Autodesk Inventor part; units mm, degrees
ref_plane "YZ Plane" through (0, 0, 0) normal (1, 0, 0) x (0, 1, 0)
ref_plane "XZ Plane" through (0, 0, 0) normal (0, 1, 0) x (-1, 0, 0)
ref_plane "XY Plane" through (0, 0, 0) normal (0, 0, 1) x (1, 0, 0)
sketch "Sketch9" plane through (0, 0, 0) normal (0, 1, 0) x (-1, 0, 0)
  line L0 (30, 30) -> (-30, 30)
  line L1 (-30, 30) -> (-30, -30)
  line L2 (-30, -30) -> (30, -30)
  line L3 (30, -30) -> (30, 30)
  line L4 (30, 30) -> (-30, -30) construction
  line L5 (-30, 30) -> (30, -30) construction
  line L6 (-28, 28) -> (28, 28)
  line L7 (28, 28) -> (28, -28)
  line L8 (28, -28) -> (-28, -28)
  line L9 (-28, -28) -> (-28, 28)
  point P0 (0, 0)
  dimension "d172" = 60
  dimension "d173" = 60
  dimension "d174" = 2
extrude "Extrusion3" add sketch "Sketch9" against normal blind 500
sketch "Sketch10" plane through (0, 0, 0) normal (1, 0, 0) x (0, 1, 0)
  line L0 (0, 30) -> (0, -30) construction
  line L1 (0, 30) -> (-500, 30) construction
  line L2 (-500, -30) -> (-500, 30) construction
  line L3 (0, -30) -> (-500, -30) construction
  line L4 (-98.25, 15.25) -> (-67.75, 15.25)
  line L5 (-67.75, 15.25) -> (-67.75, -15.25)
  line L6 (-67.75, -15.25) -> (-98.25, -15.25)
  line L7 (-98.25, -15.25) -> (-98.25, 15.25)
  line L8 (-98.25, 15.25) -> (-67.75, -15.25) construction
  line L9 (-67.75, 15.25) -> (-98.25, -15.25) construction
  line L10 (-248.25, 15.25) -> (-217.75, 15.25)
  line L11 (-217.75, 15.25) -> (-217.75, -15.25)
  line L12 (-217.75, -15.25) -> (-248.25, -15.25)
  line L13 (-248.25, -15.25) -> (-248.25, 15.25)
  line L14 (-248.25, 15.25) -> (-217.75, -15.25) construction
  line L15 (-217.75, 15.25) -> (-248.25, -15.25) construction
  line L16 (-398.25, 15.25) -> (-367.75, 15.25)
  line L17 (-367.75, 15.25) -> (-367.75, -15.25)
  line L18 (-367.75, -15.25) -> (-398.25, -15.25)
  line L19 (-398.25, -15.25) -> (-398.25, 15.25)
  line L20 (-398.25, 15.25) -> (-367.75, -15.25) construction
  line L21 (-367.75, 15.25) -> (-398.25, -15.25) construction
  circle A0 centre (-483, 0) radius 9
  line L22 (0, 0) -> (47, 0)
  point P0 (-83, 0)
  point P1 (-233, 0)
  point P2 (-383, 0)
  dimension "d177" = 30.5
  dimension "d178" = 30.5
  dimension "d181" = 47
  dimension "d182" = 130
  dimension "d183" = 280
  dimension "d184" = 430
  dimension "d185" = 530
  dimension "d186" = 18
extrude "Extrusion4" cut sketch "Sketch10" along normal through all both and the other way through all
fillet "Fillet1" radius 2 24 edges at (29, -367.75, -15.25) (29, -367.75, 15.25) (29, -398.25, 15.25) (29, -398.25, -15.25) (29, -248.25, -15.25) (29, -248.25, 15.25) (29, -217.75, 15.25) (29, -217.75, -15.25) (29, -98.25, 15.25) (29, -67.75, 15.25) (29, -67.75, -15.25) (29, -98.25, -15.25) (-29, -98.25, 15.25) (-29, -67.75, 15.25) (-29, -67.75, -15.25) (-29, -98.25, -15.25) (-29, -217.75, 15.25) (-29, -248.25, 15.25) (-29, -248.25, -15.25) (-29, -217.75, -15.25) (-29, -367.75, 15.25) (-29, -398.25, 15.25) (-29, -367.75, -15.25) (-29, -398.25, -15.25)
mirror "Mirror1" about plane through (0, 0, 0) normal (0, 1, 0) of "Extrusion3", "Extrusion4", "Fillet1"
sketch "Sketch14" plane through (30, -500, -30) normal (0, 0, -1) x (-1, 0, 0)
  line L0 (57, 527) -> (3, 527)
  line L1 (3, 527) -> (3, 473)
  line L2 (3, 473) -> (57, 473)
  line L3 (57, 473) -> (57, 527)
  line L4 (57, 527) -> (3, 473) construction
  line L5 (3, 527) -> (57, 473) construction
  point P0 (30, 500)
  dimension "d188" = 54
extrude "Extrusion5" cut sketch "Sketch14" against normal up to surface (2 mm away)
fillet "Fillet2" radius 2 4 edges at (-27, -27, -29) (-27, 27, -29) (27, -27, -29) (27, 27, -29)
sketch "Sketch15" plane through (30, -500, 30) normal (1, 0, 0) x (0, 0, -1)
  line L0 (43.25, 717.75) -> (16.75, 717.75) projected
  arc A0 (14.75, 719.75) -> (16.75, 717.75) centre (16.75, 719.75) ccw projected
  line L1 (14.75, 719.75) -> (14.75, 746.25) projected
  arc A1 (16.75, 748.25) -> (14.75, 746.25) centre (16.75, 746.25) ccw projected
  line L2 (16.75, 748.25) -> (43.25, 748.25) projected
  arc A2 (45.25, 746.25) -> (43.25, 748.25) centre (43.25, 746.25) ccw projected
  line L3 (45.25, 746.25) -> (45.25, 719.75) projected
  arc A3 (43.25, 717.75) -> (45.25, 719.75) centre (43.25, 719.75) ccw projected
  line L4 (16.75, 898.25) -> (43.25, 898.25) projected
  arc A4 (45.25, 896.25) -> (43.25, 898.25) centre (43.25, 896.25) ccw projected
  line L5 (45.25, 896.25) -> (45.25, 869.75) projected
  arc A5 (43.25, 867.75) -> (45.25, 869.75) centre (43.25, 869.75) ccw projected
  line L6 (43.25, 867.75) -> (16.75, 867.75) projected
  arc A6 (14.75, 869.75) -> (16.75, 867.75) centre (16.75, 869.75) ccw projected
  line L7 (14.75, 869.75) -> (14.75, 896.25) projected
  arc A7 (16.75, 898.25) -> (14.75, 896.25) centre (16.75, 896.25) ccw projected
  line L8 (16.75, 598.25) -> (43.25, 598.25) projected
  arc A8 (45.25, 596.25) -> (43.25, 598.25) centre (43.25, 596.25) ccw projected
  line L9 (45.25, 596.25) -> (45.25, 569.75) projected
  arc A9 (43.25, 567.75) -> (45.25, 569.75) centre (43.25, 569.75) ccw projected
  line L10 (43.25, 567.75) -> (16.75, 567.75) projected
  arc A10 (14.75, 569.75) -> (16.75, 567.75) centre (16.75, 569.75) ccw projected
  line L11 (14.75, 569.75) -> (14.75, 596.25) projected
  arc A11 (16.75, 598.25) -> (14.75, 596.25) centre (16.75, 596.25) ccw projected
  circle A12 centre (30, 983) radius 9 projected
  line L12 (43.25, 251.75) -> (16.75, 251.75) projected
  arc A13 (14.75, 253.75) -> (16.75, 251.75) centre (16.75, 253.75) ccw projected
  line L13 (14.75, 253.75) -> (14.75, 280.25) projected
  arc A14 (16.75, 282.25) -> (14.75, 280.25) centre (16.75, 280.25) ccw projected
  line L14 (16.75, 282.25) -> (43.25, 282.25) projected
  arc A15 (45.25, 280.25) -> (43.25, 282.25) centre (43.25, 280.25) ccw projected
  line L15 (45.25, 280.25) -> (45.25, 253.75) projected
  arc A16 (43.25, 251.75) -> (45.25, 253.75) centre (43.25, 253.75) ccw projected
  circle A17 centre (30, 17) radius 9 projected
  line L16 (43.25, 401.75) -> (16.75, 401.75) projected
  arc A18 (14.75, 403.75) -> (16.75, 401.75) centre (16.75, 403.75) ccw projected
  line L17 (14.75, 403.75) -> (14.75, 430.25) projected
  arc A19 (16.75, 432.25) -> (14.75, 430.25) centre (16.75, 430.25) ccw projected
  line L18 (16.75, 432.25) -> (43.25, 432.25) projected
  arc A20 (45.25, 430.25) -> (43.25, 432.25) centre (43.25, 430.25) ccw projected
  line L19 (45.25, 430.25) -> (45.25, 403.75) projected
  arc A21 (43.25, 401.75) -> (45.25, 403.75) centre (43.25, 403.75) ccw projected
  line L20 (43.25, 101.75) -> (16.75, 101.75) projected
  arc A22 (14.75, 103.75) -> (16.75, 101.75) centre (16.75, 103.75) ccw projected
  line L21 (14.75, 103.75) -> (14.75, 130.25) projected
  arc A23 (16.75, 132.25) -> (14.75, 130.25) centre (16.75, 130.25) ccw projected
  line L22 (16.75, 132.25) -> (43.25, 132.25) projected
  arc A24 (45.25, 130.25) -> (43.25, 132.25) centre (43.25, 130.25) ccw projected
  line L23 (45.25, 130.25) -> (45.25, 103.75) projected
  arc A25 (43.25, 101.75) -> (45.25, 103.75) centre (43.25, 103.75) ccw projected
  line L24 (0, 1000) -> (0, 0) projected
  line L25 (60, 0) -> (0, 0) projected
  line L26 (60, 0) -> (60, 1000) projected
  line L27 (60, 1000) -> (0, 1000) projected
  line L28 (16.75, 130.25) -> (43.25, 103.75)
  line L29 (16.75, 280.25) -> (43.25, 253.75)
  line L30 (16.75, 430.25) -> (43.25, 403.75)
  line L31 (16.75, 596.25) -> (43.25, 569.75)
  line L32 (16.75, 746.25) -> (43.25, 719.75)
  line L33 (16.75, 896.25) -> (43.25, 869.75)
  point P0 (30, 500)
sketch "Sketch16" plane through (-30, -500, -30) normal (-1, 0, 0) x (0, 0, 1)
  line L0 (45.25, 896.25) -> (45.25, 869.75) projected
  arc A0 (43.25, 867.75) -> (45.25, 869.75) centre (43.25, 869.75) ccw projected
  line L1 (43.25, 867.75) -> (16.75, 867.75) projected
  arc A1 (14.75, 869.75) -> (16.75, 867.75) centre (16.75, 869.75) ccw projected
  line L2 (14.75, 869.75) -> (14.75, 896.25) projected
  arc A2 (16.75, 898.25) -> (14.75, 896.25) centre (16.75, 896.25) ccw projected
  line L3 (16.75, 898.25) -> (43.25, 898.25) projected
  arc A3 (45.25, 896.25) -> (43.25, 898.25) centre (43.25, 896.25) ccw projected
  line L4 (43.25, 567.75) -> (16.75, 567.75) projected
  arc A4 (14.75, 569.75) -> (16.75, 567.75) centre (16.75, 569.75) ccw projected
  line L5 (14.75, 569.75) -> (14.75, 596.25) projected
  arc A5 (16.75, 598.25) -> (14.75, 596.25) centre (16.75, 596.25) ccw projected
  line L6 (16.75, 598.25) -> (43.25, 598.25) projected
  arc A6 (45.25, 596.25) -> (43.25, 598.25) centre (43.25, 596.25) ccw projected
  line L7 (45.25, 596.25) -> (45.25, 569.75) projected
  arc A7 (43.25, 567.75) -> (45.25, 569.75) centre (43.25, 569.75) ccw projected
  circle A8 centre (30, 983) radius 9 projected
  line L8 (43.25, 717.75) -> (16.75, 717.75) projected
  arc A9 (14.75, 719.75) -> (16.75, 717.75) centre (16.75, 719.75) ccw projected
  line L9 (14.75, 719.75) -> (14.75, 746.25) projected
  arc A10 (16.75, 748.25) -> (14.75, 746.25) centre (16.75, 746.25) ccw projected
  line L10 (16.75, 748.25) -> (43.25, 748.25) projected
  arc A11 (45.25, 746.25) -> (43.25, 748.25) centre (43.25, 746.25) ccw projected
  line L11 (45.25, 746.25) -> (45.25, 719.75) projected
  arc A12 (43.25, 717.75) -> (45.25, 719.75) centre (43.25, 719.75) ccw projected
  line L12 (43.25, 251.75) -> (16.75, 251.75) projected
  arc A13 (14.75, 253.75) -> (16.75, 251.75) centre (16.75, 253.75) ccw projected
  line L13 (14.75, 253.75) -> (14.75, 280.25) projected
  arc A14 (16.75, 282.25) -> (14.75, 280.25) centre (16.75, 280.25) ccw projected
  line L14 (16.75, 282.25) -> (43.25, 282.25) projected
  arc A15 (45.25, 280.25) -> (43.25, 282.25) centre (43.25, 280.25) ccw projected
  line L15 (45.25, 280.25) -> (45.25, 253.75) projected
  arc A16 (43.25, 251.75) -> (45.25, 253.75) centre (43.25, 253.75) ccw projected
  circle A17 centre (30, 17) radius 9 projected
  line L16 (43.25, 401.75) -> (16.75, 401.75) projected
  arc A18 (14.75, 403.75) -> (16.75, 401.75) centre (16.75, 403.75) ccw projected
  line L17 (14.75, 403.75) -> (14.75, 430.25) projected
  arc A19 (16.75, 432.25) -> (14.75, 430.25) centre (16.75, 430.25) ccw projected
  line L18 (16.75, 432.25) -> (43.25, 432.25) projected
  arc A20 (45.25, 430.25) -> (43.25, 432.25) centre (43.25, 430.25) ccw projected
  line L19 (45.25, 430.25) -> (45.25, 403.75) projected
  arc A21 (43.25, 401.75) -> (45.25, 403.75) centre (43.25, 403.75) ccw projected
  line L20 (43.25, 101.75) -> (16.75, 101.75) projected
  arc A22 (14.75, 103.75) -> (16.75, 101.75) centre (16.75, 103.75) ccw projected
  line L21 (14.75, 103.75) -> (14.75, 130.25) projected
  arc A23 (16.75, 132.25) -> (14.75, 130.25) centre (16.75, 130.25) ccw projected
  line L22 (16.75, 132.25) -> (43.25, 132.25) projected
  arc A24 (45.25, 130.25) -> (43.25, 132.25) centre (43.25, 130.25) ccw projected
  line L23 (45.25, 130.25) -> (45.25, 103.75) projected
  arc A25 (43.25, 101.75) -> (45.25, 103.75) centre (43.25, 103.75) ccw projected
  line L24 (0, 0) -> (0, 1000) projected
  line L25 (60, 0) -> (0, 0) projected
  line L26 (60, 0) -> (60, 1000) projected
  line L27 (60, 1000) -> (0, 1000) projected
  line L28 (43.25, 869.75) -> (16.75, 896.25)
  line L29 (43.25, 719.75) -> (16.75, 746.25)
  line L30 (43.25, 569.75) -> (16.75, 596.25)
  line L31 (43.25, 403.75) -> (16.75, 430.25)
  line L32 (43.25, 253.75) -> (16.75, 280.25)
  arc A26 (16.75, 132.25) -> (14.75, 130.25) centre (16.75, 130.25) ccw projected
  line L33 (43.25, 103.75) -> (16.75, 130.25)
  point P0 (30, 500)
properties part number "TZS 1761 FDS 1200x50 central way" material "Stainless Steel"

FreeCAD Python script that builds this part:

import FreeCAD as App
import Part
import Sketcher

V = App.Vector
Q = App.Units.Quantity


def edges_at(feature, points):
    """Names of the edges that pass closest to the given points."""
    edges = feature.Shape.Edges
    near = lambda p: min(range(len(edges)), key=lambda i: edges[i].distToShape(Part.Vertex(*p))[0])
    return sorted({f"Edge{near(p) + 1}" for p in points})

doc = App.newDocument("Part")
body = doc.addObject("PartDesign::Body", "Body")

# Sketch on XZ plane
sketch1 = body.newObject("Sketcher::SketchObject", "Sketch")
sketch1.AttachmentSupport = (doc.getObject("XZ_Plane"), [""])
sketch1.MapMode = "FlatFace"
sketch1.addGeometry(Part.LineSegment(V(-30, -30, 0), V(-30, 30, 0)), False)
sketch1.addGeometry(Part.LineSegment(V(-30, 30, 0), V(30, 30, 0)), False)
sketch1.addGeometry(Part.LineSegment(V(30, 30, 0), V(30, -30, 0)), False)
sketch1.addGeometry(Part.LineSegment(V(30, -30, 0), V(-30, -30, 0)), False)
sketch1.addGeometry(Part.LineSegment(V(28, -28, 0), V(28, 28, 0)), False)
sketch1.addGeometry(Part.LineSegment(V(28, 28, 0), V(-28, 28, 0)), False)
sketch1.addGeometry(Part.LineSegment(V(-28, 28, 0), V(-28, -28, 0)), False)
sketch1.addGeometry(Part.LineSegment(V(-28, -28, 0), V(28, -28, 0)), False)
sketch1.addConstraint(Sketcher.Constraint("Coincident", 0, 2, 1, 1))
sketch1.addConstraint(Sketcher.Constraint("Coincident", 1, 2, 2, 1))
sketch1.addConstraint(Sketcher.Constraint("Coincident", 2, 2, 3, 1))
sketch1.addConstraint(Sketcher.Constraint("Coincident", 3, 2, 0, 1))
sketch1.addConstraint(Sketcher.Constraint("Coincident", 4, 2, 5, 1))
sketch1.addConstraint(Sketcher.Constraint("Coincident", 5, 2, 6, 1))
sketch1.addConstraint(Sketcher.Constraint("Coincident", 6, 2, 7, 1))
sketch1.addConstraint(Sketcher.Constraint("Coincident", 7, 2, 4, 1))
sketch1.addConstraint(Sketcher.Constraint("Vertical", 0))
sketch1.addConstraint(Sketcher.Constraint("Horizontal", 1))
sketch1.addConstraint(Sketcher.Constraint("Vertical", 2))
sketch1.addConstraint(Sketcher.Constraint("Horizontal", 3))
sketch1.addConstraint(Sketcher.Constraint("Vertical", 4))
sketch1.addConstraint(Sketcher.Constraint("Horizontal", 5))
sketch1.addConstraint(Sketcher.Constraint("Vertical", 6))
sketch1.addConstraint(Sketcher.Constraint("Horizontal", 7))
sketch1.addConstraint(Sketcher.Constraint("Symmetric", 0, 2, 2, 2, -1, 1))
sketch1.addConstraint(Sketcher.Constraint("Symmetric", 4, 2, 6, 2, -1, 1))
sketch1.addConstraint(Sketcher.Constraint("Equal", 3, 0))
sketch1.addConstraint(Sketcher.Constraint("Equal", 7, 4))
sketch1.addConstraint(Sketcher.Constraint("DistanceX", 1, 1, 1, 2, Q("60 mm")))
sketch1.addConstraint(Sketcher.Constraint("DistanceX", 4, 2, 1, 2, Q("2 mm")))
pad1 = body.newObject("PartDesign::Pad", "Pad")
pad1.Profile = sketch1
pad1.Length = 500

# Sketch on YZ plane
sketch2 = body.newObject("Sketcher::SketchObject", "Sketch001")
sketch2.AttachmentSupport = (doc.getObject("YZ_Plane"), [""])
sketch2.MapMode = "FlatFace"
sketch2.addGeometry(Part.LineSegment(V(-68, 15, 0), V(-98, 15, 0)), False)
sketch2.addGeometry(Part.LineSegment(V(-98, 15, 0), V(-98, -15, 0)), False)
sketch2.addGeometry(Part.LineSegment(V(-98, -15, 0), V(-68, -15, 0)), False)
sketch2.addGeometry(Part.LineSegment(V(-68, -15, 0), V(-68, 15, 0)), False)
sketch2.addGeometry(Part.LineSegment(V(-218, 15, 0), V(-248, 15, 0)), False)
sketch2.addGeometry(Part.LineSegment(V(-248, 15, 0), V(-248, -15, 0)), False)
sketch2.addGeometry(Part.LineSegment(V(-248, -15, 0), V(-218, -15, 0)), False)
sketch2.addGeometry(Part.LineSegment(V(-218, -15, 0), V(-218, 15, 0)), False)
sketch2.addGeometry(Part.LineSegment(V(-368, 15, 0), V(-398, 15, 0)), False)
sketch2.addGeometry(Part.LineSegment(V(-398, 15, 0), V(-398, -15, 0)), False)
sketch2.addGeometry(Part.LineSegment(V(-398, -15, 0), V(-368, -15, 0)), False)
sketch2.addGeometry(Part.LineSegment(V(-368, -15, 0), V(-368, 15, 0)), False)
sketch2.addGeometry(Part.Circle(V(-483, 0, 0), V(0, 0, 1), 9), False)
sketch2.addConstraint(Sketcher.Constraint("Coincident", 0, 2, 1, 1))
sketch2.addConstraint(Sketcher.Constraint("Coincident", 1, 2, 2, 1))
sketch2.addConstraint(Sketcher.Constraint("Coincident", 2, 2, 3, 1))
sketch2.addConstraint(Sketcher.Constraint("Coincident", 3, 2, 0, 1))
sketch2.addConstraint(Sketcher.Constraint("Coincident", 4, 2, 5, 1))
sketch2.addConstraint(Sketcher.Constraint("Coincident", 5, 2, 6, 1))
sketch2.addConstraint(Sketcher.Constraint("Coincident", 6, 2, 7, 1))
sketch2.addConstraint(Sketcher.Constraint("Coincident", 7, 2, 4, 1))
sketch2.addConstraint(Sketcher.Constraint("Coincident", 8, 2, 9, 1))
sketch2.addConstraint(Sketcher.Constraint("Coincident", 9, 2, 10, 1))
sketch2.addConstraint(Sketcher.Constraint("Coincident", 10, 2, 11, 1))
sketch2.addConstraint(Sketcher.Constraint("Coincident", 11, 2, 8, 1))
sketch2.addConstraint(Sketcher.Constraint("Horizontal", 0))
sketch2.addConstraint(Sketcher.Constraint("Vertical", 1))
sketch2.addConstraint(Sketcher.Constraint("Horizontal", 2))
sketch2.addConstraint(Sketcher.Constraint("Vertical", 3))
sketch2.addConstraint(Sketcher.Constraint("Horizontal", 4))
sketch2.addConstraint(Sketcher.Constraint("Vertical", 5))
sketch2.addConstraint(Sketcher.Constraint("Horizontal", 6))
sketch2.addConstraint(Sketcher.Constraint("Vertical", 7))
sketch2.addConstraint(Sketcher.Constraint("Horizontal", 8))
sketch2.addConstraint(Sketcher.Constraint("Vertical", 9))
sketch2.addConstraint(Sketcher.Constraint("Horizontal", 10))
sketch2.addConstraint(Sketcher.Constraint("Vertical", 11))
sketch2.addConstraint(Sketcher.Constraint("PointOnObject", 12, 3, -1))
sketch2.addConstraint(Sketcher.Constraint("Horizontal", 3, 2, 4, 2))
sketch2.addConstraint(Sketcher.Constraint("Horizontal", 2, 2, 5, 2))
sketch2.addConstraint(Sketcher.Constraint("Horizontal", 7, 2, 8, 2))
sketch2.addConstraint(Sketcher.Constraint("Horizontal", 6, 2, 9, 2))
sketch2.addConstraint(Sketcher.Constraint("Equal", 2, 4))
sketch2.addConstraint(Sketcher.Constraint("Equal", 6, 8))
sketch2.addConstraint(Sketcher.Constraint("Equal", 10, 1))
sketch2.addConstraint(Sketcher.Constraint("Diameter", 12, Q("18 mm")))
sketch2.addConstraint(Sketcher.Constraint("DistanceX", 0, 2, 0, 1, Q("30.5 mm")))
sketch2.addConstraint(Sketcher.Constraint("DistanceX", 12, 3, -1, 1, Q("483 mm")))
sketch2.addConstraint(Sketcher.Constraint("DistanceX", 4, 2, 0, 2, Q("150 mm")))
sketch2.addConstraint(Sketcher.Constraint("DistanceX", 8, 2, 4, 2, Q("150 mm")))
sketch2.addConstraint(Sketcher.Constraint("DistanceX", 0, 2, -1, 1, Q("98.25 mm")))
sketch2.addConstraint(Sketcher.Constraint("DistanceY", -1, 1, 0, 2, Q("15.25 mm")))
pocket1 = body.newObject("PartDesign::Pocket", "Pocket")
pocket1.Profile = sketch2
pocket1.Type = "ThroughAll"
pocket1.Midplane = True
doc.recompute()

fillet = body.newObject("PartDesign::Fillet", "Fillet")
fillet.Base = (pocket1, edges_at(pocket1, [
    (29, -367.75, -15.25),
    (29, -367.75, 15.25),
    (29, -398.25, 15.25),
    (29, -398.25, -15.25),
    (29, -248.25, -15.25),
    (29, -248.25, 15.25),
    (29, -217.75, 15.25),
    (29, -217.75, -15.25),
    (29, -98.25, 15.25),
    (29, -67.75, 15.25),
    (29, -67.75, -15.25),
    (29, -98.25, -15.25),
    (-29, -98.25, 15.25),
    (-29, -67.75, 15.25),
    (-29, -67.75, -15.25),
    (-29, -98.25, -15.25),
    (-29, -217.75, 15.25),
    (-29, -248.25, 15.25),
    (-29, -248.25, -15.25),
    (-29, -217.75, -15.25),
    (-29, -367.75, 15.25),
    (-29, -398.25, 15.25),
    (-29, -367.75, -15.25),
    (-29, -398.25, -15.25),
]))
fillet.Radius = 2
doc.recompute()

mirrored = body.newObject("PartDesign::Mirrored", "Mirrored")
mirrored.Originals = [pad1, pocket1, fillet]
mirrored.MirrorPlane = (doc.getObject("XZ_Plane"), [""])
body.Tip = mirrored

# Sketch on XY plane
sketch3 = body.newObject("Sketcher::SketchObject", "Sketch002")
sketch3.AttachmentSupport = (doc.getObject("XY_Plane"), [""])
sketch3.MapMode = "FlatFace"
sketch3.AttachmentOffset = App.Placement(V(0, 0, -30), App.Rotation())
sketch3.addGeometry(Part.LineSegment(V(-27, -27, 0), V(-27, 27, 0)), False)
sketch3.addGeometry(Part.LineSegment(V(-27, 27, 0), V(27, 27, 0)), False)
sketch3.addGeometry(Part.LineSegment(V(27, 27, 0), V(27, -27, 0)), False)
sketch3.addGeometry(Part.LineSegment(V(27, -27, 0), V(-27, -27, 0)), False)
sketch3.addConstraint(Sketcher.Constraint("Coincident", 0, 2, 1, 1))
sketch3.addConstraint(Sketcher.Constraint("Coincident", 1, 2, 2, 1))
sketch3.addConstraint(Sketcher.Constraint("Coincident", 2, 2, 3, 1))
sketch3.addConstraint(Sketcher.Constraint("Coincident", 3, 2, 0, 1))
sketch3.addConstraint(Sketcher.Constraint("Vertical", 0))
sketch3.addConstraint(Sketcher.Constraint("Horizontal", 1))
sketch3.addConstraint(Sketcher.Constraint("Vertical", 2))
sketch3.addConstraint(Sketcher.Constraint("Horizontal", 3))
sketch3.addConstraint(Sketcher.Constraint("Symmetric", 0, 2, 2, 2, -1, 1))
sketch3.addConstraint(Sketcher.Constraint("Equal", 3, 0))
sketch3.addConstraint(Sketcher.Constraint("DistanceX", 1, 1, 1, 2, Q("54 mm")))
pocket2 = body.newObject("PartDesign::Pocket", "Pocket001")
pocket2.Profile = sketch3
pocket2.Length = 2
pocket2.Reversed = True
doc.recompute()

fillet2 = body.newObject("PartDesign::Fillet", "Fillet001")
fillet2.Base = (pocket2, edges_at(pocket2, [
    (-27, -27, -29),
    (-27, 27, -29),
    (27, -27, -29),
    (27, 27, -29),
]))
fillet2.Radius = 2

doc.recompute()
